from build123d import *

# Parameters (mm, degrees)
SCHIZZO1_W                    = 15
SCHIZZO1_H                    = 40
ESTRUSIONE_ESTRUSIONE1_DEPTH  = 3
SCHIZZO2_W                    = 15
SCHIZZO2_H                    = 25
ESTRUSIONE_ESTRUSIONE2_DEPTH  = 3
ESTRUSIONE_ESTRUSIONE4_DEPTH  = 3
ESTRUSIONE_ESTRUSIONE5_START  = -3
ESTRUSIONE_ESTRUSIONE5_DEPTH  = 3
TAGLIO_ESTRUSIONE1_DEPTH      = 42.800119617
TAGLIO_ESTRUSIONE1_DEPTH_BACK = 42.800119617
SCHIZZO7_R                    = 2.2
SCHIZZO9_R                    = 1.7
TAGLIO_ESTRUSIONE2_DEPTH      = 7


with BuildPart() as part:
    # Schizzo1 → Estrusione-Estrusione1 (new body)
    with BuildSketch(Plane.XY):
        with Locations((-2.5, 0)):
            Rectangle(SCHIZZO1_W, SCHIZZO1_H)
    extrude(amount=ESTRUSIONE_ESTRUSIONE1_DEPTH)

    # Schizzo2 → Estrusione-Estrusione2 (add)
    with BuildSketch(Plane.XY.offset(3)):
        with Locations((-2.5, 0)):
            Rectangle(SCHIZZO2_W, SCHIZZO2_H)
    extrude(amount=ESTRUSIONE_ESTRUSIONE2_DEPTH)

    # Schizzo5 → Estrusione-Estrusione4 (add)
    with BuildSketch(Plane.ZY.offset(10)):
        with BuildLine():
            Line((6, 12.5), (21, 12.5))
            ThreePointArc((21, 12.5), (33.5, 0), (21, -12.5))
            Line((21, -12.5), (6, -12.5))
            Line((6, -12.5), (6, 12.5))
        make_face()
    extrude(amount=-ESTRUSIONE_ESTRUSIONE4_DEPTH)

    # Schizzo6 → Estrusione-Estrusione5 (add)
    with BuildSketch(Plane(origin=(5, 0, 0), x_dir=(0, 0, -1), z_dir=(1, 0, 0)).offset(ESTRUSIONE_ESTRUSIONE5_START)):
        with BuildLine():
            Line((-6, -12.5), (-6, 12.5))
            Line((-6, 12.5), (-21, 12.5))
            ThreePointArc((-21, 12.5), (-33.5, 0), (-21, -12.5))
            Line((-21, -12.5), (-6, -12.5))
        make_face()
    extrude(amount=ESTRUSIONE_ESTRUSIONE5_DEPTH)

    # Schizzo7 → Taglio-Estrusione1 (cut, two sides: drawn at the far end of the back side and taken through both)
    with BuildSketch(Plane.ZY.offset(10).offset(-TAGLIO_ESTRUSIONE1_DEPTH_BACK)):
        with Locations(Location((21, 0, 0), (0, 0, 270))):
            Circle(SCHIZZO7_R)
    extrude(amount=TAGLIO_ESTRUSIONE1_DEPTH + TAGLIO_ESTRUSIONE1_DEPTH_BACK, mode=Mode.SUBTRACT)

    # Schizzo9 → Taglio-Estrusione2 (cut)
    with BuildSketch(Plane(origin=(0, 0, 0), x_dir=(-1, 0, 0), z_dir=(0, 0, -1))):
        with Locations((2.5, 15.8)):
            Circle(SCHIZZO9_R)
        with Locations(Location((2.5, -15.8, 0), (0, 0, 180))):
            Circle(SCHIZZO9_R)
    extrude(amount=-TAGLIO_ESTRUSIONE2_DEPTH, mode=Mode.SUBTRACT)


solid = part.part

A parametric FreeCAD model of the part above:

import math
import FreeCAD as App
import Part
import Sketcher

V = App.Vector


def add_polygon(sketch, points):
    """Adds a closed chain of lines whose ends are joined by coincident constraints."""
    first, n = sketch.GeometryCount, len(points)
    for a, b in zip(points, points[1:] + points[:1]):
        sketch.addGeometry(Part.LineSegment(App.Vector(*a, 0), App.Vector(*b, 0)), False)
    for i in range(n):
        sketch.addConstraint(Sketcher.Constraint("Coincident", first + i, 2, first + (i + 1) % n, 1))

doc = App.newDocument("Part")
body = doc.addObject("PartDesign::Body", "Body")

sketch1 = body.newObject("Sketcher::SketchObject", "Sketch")
sketch1.AttachmentSupport = (doc.getObject("XY_Plane"), [""])
sketch1.MapMode = "FlatFace"
add_polygon(sketch1, [(-10, 20), (-10, -20), (5, -20), (5, 20)])
sketch1.addConstraint(Sketcher.Constraint("Vertical", 0))
sketch1.addConstraint(Sketcher.Constraint("Horizontal", 1))
sketch1.addConstraint(Sketcher.Constraint("Vertical", 2))
sketch1.addConstraint(Sketcher.Constraint("Horizontal", 3))
sketch1.addConstraint(Sketcher.Constraint("DistanceX", 1, 1, 1, 2, 15.0))
sketch1.addConstraint(Sketcher.Constraint("DistanceY", 0, 2, 0, 1, 40.0))
sketch1.addConstraint(Sketcher.Constraint("DistanceX", 0, 2, -1, 1, 10.0))
sketch1.addConstraint(Sketcher.Constraint("DistanceY", 0, 2, -1, 1, 20.0))
pad1 = body.newObject("PartDesign::Pad", "Pad")
pad1.Profile = sketch1
pad1.Length = 3

sketch2 = body.newObject("Sketcher::SketchObject", "Sketch001")
sketch2.AttachmentSupport = (doc.getObject("XY_Plane"), [""])
sketch2.MapMode = "FlatFace"
sketch2.AttachmentOffset = App.Placement(V(0, 0, 3), App.Rotation())
add_polygon(sketch2, [(-10, 12), (-10, -12), (5, -12), (5, 12)])
sketch2.addConstraint(Sketcher.Constraint("Vertical", 0))
sketch2.addConstraint(Sketcher.Constraint("Horizontal", 1))
sketch2.addConstraint(Sketcher.Constraint("Vertical", 2))
sketch2.addConstraint(Sketcher.Constraint("Horizontal", 3))
sketch2.addConstraint(Sketcher.Constraint("DistanceX", 1, 1, 1, 2, 15.0))
sketch2.addConstraint(Sketcher.Constraint("DistanceY", 0, 2, 0, 1, 25.0))
sketch2.addConstraint(Sketcher.Constraint("DistanceX", 0, 2, -1, 1, 10.0))
sketch2.addConstraint(Sketcher.Constraint("DistanceY", 0, 2, -1, 1, 12.5))
pad2 = body.newObject("PartDesign::Pad", "Pad001")
pad2.Profile = sketch2
pad2.Length = 3

sketch3 = body.newObject("Sketcher::SketchObject", "Sketch002")
sketch3.AttachmentSupport = (doc.getObject("YZ_Plane"), [""])
sketch3.MapMode = "FlatFace"
sketch3.AttachmentOffset = App.Placement(V(0, 0, -10), App.Rotation())
sketch3.addGeometry(Part.LineSegment(V(12, 21, 0), V(12, 6, 0)), False)
sketch3.addGeometry(Part.LineSegment(V(12, 6, 0), V(-12, 6, 0)), False)
sketch3.addGeometry(Part.LineSegment(V(-12, 6, 0), V(-12, 21, 0)), False)
sketch3.addGeometry(Part.ArcOfCircle(Part.Circle(V(0, 21, 0), V(0, 0, 1), 12), math.radians(0), math.radians(180)), False)
sketch3.addConstraint(Sketcher.Constraint("Coincident", 0, 2, 1, 1))
sketch3.addConstraint(Sketcher.Constraint("Coincident", 1, 2, 2, 1))
sketch3.addConstraint(Sketcher.Constraint("Tangent", 2, 2, 3, 2))
sketch3.addConstraint(Sketcher.Constraint("Tangent", 3, 1, 0, 1))
sketch3.addConstraint(Sketcher.Constraint("Vertical", 0))
sketch3.addConstraint(Sketcher.Constraint("Horizontal", 1))
sketch3.addConstraint(Sketcher.Constraint("Vertical", 2))
sketch3.addConstraint(Sketcher.Constraint("PointOnObject", 3, 3, -2))
sketch3.addConstraint(Sketcher.Constraint("Radius", 3, 12.5))
sketch3.addConstraint(Sketcher.Constraint("DistanceY", 0, 2, 0, 1, 15.0))
sketch3.addConstraint(Sketcher.Constraint("DistanceY", -1, 1, 3, 3, 21.0))
pad3 = body.newObject("PartDesign::Pad", "Pad002")
pad3.Profile = sketch3
pad3.Length = 3

sketch4 = body.newObject("Sketcher::SketchObject", "Sketch003")
sketch4.AttachmentSupport = (doc.getObject("YZ_Plane"), [""])
sketch4.MapMode = "FlatFace"
sketch4.AttachmentOffset = App.Placement(V(0, 0, 2), App.Rotation())
sketch4.addGeometry(Part.LineSegment(V(-12, 6, 0), V(12, 6, 0)), False)
sketch4.addGeometry(Part.LineSegment(V(12, 6, 0), V(12, 21, 0)), False)
sketch4.addGeometry(Part.ArcOfCircle(Part.Circle(V(0, 21, 0), V(0, 0, 1), 12), math.radians(0), math.radians(180)), False)
sketch4.addGeometry(Part.LineSegment(V(-12, 21, 0), V(-12, 6, 0)), False)
sketch4.addConstraint(Sketcher.Constraint("Coincident", 0, 2, 1, 1))
sketch4.addConstraint(Sketcher.Constraint("Tangent", 1, 2, 2, 1))
sketch4.addConstraint(Sketcher.Constraint("Tangent", 2, 2, 3, 1))
sketch4.addConstraint(Sketcher.Constraint("Coincident", 3, 2, 0, 1))
sketch4.addConstraint(Sketcher.Constraint("Horizontal", 0))
sketch4.addConstraint(Sketcher.Constraint("Vertical", 1))
sketch4.addConstraint(Sketcher.Constraint("Vertical", 3))
sketch4.addConstraint(Sketcher.Constraint("PointOnObject", 2, 3, -2))
sketch4.addConstraint(Sketcher.Constraint("Radius", 2, 12.5))
sketch4.addConstraint(Sketcher.Constraint("DistanceY", 1, 1, 1, 2, 15.0))
sketch4.addConstraint(Sketcher.Constraint("DistanceY", -1, 1, 2, 3, 21.0))
pad4 = body.newObject("PartDesign::Pad", "Pad003")
pad4.Profile = sketch4
pad4.Length = 3

sketch5 = body.newObject("Sketcher::SketchObject", "Sketch004")
sketch5.AttachmentSupport = (doc.getObject("YZ_Plane"), [""])
sketch5.MapMode = "FlatFace"
sketch5.AttachmentOffset = App.Placement(V(0, 0, -10), App.Rotation())
sketch5.addGeometry(Part.Circle(V(0, 21, 0), V(0, 0, 1), 2.2), False)
sketch5.addConstraint(Sketcher.Constraint("PointOnObject", 0, 3, -2))
sketch5.addConstraint(Sketcher.Constraint("Diameter", 0, 4.4))
sketch5.addConstraint(Sketcher.Constraint("DistanceY", -1, 1, 0, 3, 21.0))
pocket1 = body.newObject("PartDesign::Pocket", "Pocket")
pocket1.Profile = sketch5
pocket1.Type = "ThroughAll"
pocket1.Midplane = True

sketch6 = body.newObject("Sketcher::SketchObject", "Sketch005")
sketch6.AttachmentSupport = (doc.getObject("XY_Plane"), [""])
sketch6.MapMode = "FlatFace"
sketch6.addGeometry(Part.Circle(V(-2.5, 15.8, 0), V(0, 0, 1), 1.7), False)
sketch6.addGeometry(Part.Circle(V(-2.5, -15.8, 0), V(0, 0, 1), 1.7), False)
sketch6.addConstraint(Sketcher.Constraint("Equal", 0, 1))
sketch6.addConstraint(Sketcher.Constraint("Symmetric", 0, 3, 1, 3, -1))
sketch6.addConstraint(Sketcher.Constraint("Diameter", 0, 3.4))
sketch6.addConstraint(Sketcher.Constraint("DistanceX", 0, 3, -1, 1, 2.5))
sketch6.addConstraint(Sketcher.Constraint("DistanceY", -1, 1, 0, 3, 15.8))
pocket2 = body.newObject("PartDesign::Pocket", "Pocket001")
pocket2.Profile = sketch6
pocket2.Length = 7
pocket2.Reversed = True

doc.recompute()
